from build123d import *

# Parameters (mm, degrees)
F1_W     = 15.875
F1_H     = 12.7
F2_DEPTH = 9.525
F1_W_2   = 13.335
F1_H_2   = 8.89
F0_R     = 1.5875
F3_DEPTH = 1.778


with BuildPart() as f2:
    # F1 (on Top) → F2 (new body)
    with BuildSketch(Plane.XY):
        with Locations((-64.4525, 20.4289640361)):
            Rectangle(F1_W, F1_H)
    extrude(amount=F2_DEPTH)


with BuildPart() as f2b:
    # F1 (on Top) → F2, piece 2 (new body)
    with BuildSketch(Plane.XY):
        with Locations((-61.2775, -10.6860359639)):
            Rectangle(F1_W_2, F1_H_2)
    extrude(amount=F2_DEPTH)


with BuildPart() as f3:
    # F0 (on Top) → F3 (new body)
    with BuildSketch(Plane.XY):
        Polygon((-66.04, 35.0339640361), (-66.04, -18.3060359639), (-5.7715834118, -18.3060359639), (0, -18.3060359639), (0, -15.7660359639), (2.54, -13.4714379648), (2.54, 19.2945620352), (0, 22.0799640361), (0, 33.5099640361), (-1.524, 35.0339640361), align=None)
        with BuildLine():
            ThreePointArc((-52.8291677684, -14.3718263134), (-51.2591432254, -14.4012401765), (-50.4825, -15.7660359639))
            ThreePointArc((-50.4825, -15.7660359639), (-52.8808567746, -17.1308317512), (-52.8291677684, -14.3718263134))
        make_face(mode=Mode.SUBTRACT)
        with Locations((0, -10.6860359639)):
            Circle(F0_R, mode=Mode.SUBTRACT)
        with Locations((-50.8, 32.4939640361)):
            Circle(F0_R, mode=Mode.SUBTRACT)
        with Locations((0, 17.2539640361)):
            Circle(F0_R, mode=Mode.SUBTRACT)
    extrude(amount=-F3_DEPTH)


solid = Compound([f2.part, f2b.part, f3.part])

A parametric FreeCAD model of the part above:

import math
import FreeCAD as App
import Part
import Sketcher

V = App.Vector
Q = App.Units.Quantity


def add_polygon(sketch, points):
    """Adds a closed chain of lines whose ends are joined by coincident constraints."""
    first, n = sketch.GeometryCount, len(points)
    for a, b in zip(points, points[1:] + points[:1]):
        sketch.addGeometry(Part.LineSegment(App.Vector(*a, 0), App.Vector(*b, 0)), False)
    for i in range(n):
        sketch.addConstraint(Sketcher.Constraint("Coincident", first + i, 2, first + (i + 1) % n, 1))

doc = App.newDocument("Part")
body = doc.addObject("PartDesign::Body", "Body")

sketch1 = body.newObject("Sketcher::SketchObject", "Sketch")
sketch1.AttachmentSupport = (doc.getObject("XY_Plane"), [""])
sketch1.MapMode = "FlatFace"
add_polygon(sketch1, [(-72, 27), (-72, 14), (-57, 14), (-57, 27)])
sketch1.addConstraint([
    Sketcher.Constraint("Vertical", 0),
    Sketcher.Constraint("Horizontal", 1),
    Sketcher.Constraint("Vertical", 2),
    Sketcher.Constraint("Horizontal", 3),
    Sketcher.Constraint("DistanceY", 0, 2, 0, 1, Q("0.5 in")),
    Sketcher.Constraint("DistanceX", 1, 1, 1, 2, Q("0.625 in")),
    Sketcher.Constraint("DistanceX", 0, 2, -1, 1, Q("2.85 in")),
    Sketcher.Constraint("DistanceY", -1, 1, 0, 2, Q("14.078964 mm")),
])
pad1 = body.newObject("PartDesign::Pad", "Pad")
pad1.Profile = sketch1
pad1.Length = Q("0.375 in")
body2 = doc.addObject("PartDesign::Body", "Body001")

sketch2 = body2.newObject("Sketcher::SketchObject", "Sketch001")
sketch2.AttachmentSupport = (doc.getObject("XY_Plane001"), [""])
sketch2.MapMode = "FlatFace"
add_polygon(sketch2, [(-68, -6), (-68, -15), (-55, -15), (-55, -6)])
sketch2.addConstraint([
    Sketcher.Constraint("Vertical", 0),
    Sketcher.Constraint("Horizontal", 1),
    Sketcher.Constraint("Vertical", 2),
    Sketcher.Constraint("Horizontal", 3),
    Sketcher.Constraint("DistanceY", 0, 2, 0, 1, Q("0.35 in")),
    Sketcher.Constraint("DistanceX", 1, 1, 1, 2, Q("0.525 in")),
    Sketcher.Constraint("DistanceX", 1, 2, -1, 1, Q("2.15 in")),
    Sketcher.Constraint("DistanceY", 0, 2, -1, 1, Q("15.131036 mm")),
])
pad2 = body2.newObject("PartDesign::Pad", "Pad001")
pad2.Profile = sketch2
pad2.Length = Q("0.375 in")
body3 = doc.addObject("PartDesign::Body", "Body002")

sketch3 = body3.newObject("Sketcher::SketchObject", "Sketch002")
sketch3.AttachmentSupport = (doc.getObject("XY_Plane002"), [""])
sketch3.MapMode = "FlatFace"
add_polygon(sketch3, [(-66, 35), (-66, -18.3), (0, -18.3), (0, -15.8), (2.5, -13.5), (2.5, 19.3), (0, 22.1), (0, 33.5), (-1.5, 35)])
sketch3.addGeometry(Part.ArcOfCircle(Part.Circle(V(-52.1, -15.8, 0), V(0, 0, 1), 1.6), math.radians(119), math.radians(360)), False)
sketch3.addGeometry(Part.ArcOfCircle(Part.Circle(V(-52.1, -15.8, 0), V(0, 0, 1), 1.6), math.radians(0), math.radians(119)), False)
sketch3.addGeometry(Part.Circle(V(0, -10.7, 0), V(0, 0, 1), 1.6), False)
sketch3.addGeometry(Part.Circle(V(-50.8, 32.5, 0), V(0, 0, 1), 1.6), False)
sketch3.addGeometry(Part.Circle(V(0, 17.3, 0), V(0, 0, 1), 1.6), False)
sketch3.addConstraint([
    Sketcher.Constraint("Tangent", 9, 1, 10, 2),
    Sketcher.Constraint("Coincident", 10, 1, 9, 2),
    Sketcher.Constraint("Vertical", 0),
    Sketcher.Constraint("Horizontal", 1),
    Sketcher.Constraint("Vertical", 2),
    Sketcher.Constraint("Vertical", 4),
    Sketcher.Constraint("Vertical", 6),
    Sketcher.Constraint("Horizontal", 8),
    Sketcher.Constraint("Equal", 10, 11),
    Sketcher.Constraint("Equal", 11, 12),
    Sketcher.Constraint("Equal", 12, 13),
    Sketcher.Constraint("PointOnObject", 11, 3, -2),
    Sketcher.Constraint("PointOnObject", 13, 3, -2),
    Sketcher.Constraint("PointOnObject", 1, 2, -2),
    Sketcher.Constraint("PointOnObject", 5, 2, -2),
    Sketcher.Constraint("Horizontal", 10, 3, 2, 2),
    Sketcher.Constraint("Horizontal", 2, 2, 10, 1),
    Sketcher.Constraint("Diameter", 11, Q("0.125 in")),
    Sketcher.Constraint("DistanceX", 1, 1, 1, 2, Q("2.6 in")),
    Sketcher.Constraint("DistanceY", 0, 2, 0, 1, Q("2.1 in")),
    Sketcher.Constraint("DistanceY", 2, 1, 2, 2, Q("0.1 in")),
    Sketcher.Constraint("DistanceX", 12, 3, -1, 1, Q("2 in")),
    Sketcher.Constraint("Angle", 7, Q("135 deg")),
    Sketcher.Constraint("DistanceY", 0, 2, 12, 3, Q("2 in")),
    Sketcher.Constraint("DistanceX", 8, 2, 8, 1, Q("2.54 in")),
    Sketcher.Constraint("DistanceY", 4, 1, 4, 2, Q("1.29 in")),
    Sketcher.Constraint("DistanceY", 6, 1, 6, 2, Q("0.45 in")),
    Sketcher.Constraint("DistanceX", -1, 1, 3, 2, Q("0.1 in")),
    Sketcher.Constraint("DistanceY", 9, 3, 11, 3, Q("0.2 in")),
    Sketcher.Constraint("DistanceY", 11, 3, 13, 3, Q("1.1 in")),
    Sketcher.Constraint("DistanceX", 9, 3, -1, 1, Q("2.05 in")),
    Sketcher.Constraint("Distance", 3, Q("3.422978 mm")),
    Sketcher.Constraint("DistanceY", 9, 3, 9, 1, Q("1.39421 mm")),
    Sketcher.Constraint("DistanceY", 9, 3, -1, 1, Q("15.766036 mm")),
])
pad3 = body3.newObject("PartDesign::Pad", "Pad002")
pad3.Profile = sketch3
pad3.Length = Q("0.07 in")
pad3.Reversed = True

doc.recompute()
